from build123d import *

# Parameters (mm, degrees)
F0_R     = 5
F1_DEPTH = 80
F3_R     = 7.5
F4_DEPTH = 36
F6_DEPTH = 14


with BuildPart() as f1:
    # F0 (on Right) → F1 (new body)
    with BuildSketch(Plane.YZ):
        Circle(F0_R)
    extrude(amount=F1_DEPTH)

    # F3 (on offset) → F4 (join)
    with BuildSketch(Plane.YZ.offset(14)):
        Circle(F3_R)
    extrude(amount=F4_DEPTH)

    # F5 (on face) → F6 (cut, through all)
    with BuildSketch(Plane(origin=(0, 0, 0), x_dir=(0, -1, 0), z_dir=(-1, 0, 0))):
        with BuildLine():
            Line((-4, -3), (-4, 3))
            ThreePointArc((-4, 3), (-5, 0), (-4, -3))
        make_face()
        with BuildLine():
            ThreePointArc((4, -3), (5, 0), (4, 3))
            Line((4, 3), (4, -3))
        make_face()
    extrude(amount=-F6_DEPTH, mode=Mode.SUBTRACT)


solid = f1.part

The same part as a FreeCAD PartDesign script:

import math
import FreeCAD as App
import Part
import Sketcher
from FreeCAD import Vector

doc = App.newDocument("Part")
body = doc.addObject("PartDesign::Body", "Body")

sketch1 = body.newObject("Sketcher::SketchObject", "Sketch")
sketch1.AttachmentSupport = (doc.getObject("YZ_Plane"), [""])
sketch1.MapMode = "FlatFace"
sketch1.addGeometry(Part.Circle(Vector(0, 0, 0), Vector(0, 0, 1), 5), False)
sketch1.addConstraint(Sketcher.Constraint("Coincident", 0, 3, -1, 1))
sketch1.addConstraint(Sketcher.Constraint("Diameter", 0, 10.0))
pad1 = body.newObject("PartDesign::Pad", "Pad")
pad1.Profile = sketch1
pad1.Length = 80

sketch2 = body.newObject("Sketcher::SketchObject", "Sketch001")
sketch2.AttachmentSupport = (doc.getObject("YZ_Plane"), [""])
sketch2.MapMode = "FlatFace"
sketch2.AttachmentOffset = App.Placement(Vector(0, 0, 14), App.Rotation())
sketch2.addGeometry(Part.Circle(Vector(0, 0, 0), Vector(0, 0, 1), 8), False)
sketch2.addConstraint(Sketcher.Constraint("Coincident", 0, 3, -1, 1))
sketch2.addConstraint(Sketcher.Constraint("Diameter", 0, 15.0))
pad2 = body.newObject("PartDesign::Pad", "Pad001")
pad2.Profile = sketch2
pad2.Length = 36

sketch3 = body.newObject("Sketcher::SketchObject", "Sketch002")
sketch3.AttachmentSupport = (doc.getObject("YZ_Plane"), [""])
sketch3.MapMode = "FlatFace"
sketch3.addGeometry(Part.LineSegment(Vector(4, -3, 0), Vector(4, 3, 0)), False)
sketch3.addGeometry(Part.ArcOfCircle(Part.Circle(Vector(0, 0, 0), Vector(0, 0, 1), 5), math.radians(-37), math.radians(37)), False)
sketch3.addGeometry(Part.ArcOfCircle(Part.Circle(Vector(0, 0, 0), Vector(0, 0, 1), 5), math.radians(143), math.radians(217)), False)
sketch3.addGeometry(Part.LineSegment(Vector(-4, 3, 0), Vector(-4, -3, 0)), False)
sketch3.addConstraint(Sketcher.Constraint("Coincident", 0, 1, 1, 1))
sketch3.addConstraint(Sketcher.Constraint("Coincident", 1, 2, 0, 2))
sketch3.addConstraint(Sketcher.Constraint("Coincident", 2, 1, 3, 1))
sketch3.addConstraint(Sketcher.Constraint("Coincident", 3, 2, 2, 2))
sketch3.addConstraint(Sketcher.Constraint("Vertical", 0))
sketch3.addConstraint(Sketcher.Constraint("Vertical", 3))
sketch3.addConstraint(Sketcher.Constraint("Coincident", 1, 3, -1, 1))
sketch3.addConstraint(Sketcher.Constraint("Coincident", 2, 3, -1, 1))
sketch3.addConstraint(Sketcher.Constraint("Equal", 1, 2))
sketch3.addConstraint(Sketcher.Constraint("Horizontal", 1, 2, 2, 1))
sketch3.addConstraint(Sketcher.Constraint("Radius", 1, 5.0))
sketch3.addConstraint(Sketcher.Constraint("DistanceY", 0, 1, 0, 2, 6.0))
pocket1 = body.newObject("PartDesign::Pocket", "Pocket")
pocket1.Profile = sketch3
pocket1.Length = 14
pocket1.Reversed = True

doc.recompute()
